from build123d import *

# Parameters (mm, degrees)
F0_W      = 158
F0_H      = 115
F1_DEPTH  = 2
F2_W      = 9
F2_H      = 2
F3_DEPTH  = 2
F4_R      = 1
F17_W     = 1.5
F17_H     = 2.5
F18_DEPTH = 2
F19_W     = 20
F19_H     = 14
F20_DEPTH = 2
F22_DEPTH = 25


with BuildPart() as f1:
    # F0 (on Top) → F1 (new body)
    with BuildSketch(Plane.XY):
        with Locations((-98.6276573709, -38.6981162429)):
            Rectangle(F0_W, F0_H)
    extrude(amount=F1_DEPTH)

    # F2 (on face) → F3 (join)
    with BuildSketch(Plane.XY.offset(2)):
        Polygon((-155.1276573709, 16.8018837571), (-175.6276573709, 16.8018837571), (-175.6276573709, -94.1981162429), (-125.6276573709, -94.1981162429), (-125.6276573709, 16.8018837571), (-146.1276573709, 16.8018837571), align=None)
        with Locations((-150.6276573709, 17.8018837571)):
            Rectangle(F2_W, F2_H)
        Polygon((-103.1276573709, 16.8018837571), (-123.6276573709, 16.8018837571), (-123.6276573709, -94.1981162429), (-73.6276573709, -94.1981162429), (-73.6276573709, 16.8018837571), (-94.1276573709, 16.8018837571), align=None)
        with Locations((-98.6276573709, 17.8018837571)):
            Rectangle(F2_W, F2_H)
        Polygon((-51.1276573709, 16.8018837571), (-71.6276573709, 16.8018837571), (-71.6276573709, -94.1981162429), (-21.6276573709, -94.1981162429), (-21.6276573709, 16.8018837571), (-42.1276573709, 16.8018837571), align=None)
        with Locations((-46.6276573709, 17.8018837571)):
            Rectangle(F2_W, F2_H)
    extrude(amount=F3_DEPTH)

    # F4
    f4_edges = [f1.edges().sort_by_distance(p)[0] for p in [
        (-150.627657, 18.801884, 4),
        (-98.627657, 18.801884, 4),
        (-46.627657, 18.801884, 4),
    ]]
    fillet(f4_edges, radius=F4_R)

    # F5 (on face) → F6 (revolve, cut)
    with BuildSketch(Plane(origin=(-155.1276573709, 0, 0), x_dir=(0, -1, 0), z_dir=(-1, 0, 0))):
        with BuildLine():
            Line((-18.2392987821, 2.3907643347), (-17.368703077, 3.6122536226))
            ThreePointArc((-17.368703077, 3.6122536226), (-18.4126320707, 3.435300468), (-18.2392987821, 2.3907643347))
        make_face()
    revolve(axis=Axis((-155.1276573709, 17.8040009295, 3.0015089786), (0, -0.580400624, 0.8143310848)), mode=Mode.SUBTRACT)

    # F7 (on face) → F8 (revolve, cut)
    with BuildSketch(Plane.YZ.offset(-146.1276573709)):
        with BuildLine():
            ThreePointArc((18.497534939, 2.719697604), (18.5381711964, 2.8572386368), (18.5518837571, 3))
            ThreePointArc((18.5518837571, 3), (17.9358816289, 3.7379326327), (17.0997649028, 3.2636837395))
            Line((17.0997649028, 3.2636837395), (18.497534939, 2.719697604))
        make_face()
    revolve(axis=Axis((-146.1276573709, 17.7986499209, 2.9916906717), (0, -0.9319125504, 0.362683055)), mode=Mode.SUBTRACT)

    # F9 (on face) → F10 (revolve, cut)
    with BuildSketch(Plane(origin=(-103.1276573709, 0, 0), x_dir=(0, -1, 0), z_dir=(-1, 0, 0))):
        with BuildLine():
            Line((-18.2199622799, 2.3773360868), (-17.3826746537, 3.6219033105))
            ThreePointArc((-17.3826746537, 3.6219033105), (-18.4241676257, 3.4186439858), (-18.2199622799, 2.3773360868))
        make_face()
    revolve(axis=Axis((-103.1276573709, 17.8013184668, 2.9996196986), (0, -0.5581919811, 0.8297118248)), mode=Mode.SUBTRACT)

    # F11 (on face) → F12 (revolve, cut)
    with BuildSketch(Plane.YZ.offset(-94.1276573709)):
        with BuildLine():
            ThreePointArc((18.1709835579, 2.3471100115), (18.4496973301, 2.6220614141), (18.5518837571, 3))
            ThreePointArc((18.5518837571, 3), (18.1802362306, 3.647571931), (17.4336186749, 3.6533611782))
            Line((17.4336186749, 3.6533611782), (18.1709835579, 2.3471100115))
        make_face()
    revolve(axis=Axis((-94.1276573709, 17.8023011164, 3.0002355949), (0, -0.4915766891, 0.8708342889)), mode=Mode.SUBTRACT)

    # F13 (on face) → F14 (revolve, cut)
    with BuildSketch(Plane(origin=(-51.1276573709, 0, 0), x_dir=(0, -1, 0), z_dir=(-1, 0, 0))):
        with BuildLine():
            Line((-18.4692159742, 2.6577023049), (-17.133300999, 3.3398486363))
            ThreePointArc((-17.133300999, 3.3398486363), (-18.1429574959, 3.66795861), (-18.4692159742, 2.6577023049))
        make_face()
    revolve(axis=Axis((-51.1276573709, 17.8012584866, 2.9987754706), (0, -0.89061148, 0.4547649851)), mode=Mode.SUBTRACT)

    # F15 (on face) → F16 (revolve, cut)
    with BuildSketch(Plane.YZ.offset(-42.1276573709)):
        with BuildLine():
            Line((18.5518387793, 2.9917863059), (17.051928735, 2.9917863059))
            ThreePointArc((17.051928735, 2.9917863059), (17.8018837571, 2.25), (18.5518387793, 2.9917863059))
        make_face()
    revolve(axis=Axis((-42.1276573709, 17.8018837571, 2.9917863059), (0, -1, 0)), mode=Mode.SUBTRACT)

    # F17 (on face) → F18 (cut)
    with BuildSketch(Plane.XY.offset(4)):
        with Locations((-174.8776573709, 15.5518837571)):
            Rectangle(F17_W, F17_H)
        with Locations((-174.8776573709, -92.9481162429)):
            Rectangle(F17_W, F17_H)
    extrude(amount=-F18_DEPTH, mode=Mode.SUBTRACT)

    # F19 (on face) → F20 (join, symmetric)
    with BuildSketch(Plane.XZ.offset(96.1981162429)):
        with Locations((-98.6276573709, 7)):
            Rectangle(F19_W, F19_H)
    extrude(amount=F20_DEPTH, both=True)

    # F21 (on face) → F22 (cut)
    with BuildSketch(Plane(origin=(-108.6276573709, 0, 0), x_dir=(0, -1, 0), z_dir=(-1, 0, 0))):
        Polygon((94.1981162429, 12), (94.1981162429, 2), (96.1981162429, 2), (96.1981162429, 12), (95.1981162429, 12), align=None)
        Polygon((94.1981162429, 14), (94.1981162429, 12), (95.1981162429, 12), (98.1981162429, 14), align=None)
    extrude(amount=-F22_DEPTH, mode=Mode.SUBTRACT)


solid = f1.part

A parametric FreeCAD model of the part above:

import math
import FreeCAD as App
import Part
import Sketcher


def edges_at(feature, points):
    """Names of the edges that pass closest to the given points."""
    edges = feature.Shape.Edges
    near = lambda p: min(range(len(edges)), key=lambda i: edges[i].distToShape(Part.Vertex(*p))[0])
    return sorted({f"Edge{near(p) + 1}" for p in points})


def add_polygon(sketch, points):
    """Adds a closed chain of lines whose ends are joined by coincident constraints."""
    first, n = sketch.GeometryCount, len(points)
    for a, b in zip(points, points[1:] + points[:1]):
        sketch.addGeometry(Part.LineSegment(App.Vector(*a, 0), App.Vector(*b, 0)), False)
    for i in range(n):
        sketch.addConstraint(Sketcher.Constraint("Coincident", first + i, 2, first + (i + 1) % n, 1))

doc = App.newDocument("Part")
body = doc.addObject("PartDesign::Body", "Body")

# Sketch on XY plane
sketch1 = body.newObject("Sketcher::SketchObject", "Sketch")
sketch1.AttachmentSupport = (doc.getObject("XY_Plane"), [""])
sketch1.MapMode = "FlatFace"
add_polygon(sketch1, [(-178, 19), (-178, -96), (-20, -96), (-20, 19)])  # lines 0-3
sketch1.addConstraint(Sketcher.Constraint("Vertical", 0))
sketch1.addConstraint(Sketcher.Constraint("Horizontal", 1))
sketch1.addConstraint(Sketcher.Constraint("Vertical", 2))
sketch1.addConstraint(Sketcher.Constraint("Horizontal", 3))
sketch1.addConstraint(Sketcher.Constraint("DistanceX", 1, 1, 1, 2, 158.0))
sketch1.addConstraint(Sketcher.Constraint("DistanceY", 0, 2, 0, 1, 115.0))
sketch1.addConstraint(Sketcher.Constraint("DistanceX", 0, 2, -1, 1, 177.627657))
sketch1.addConstraint(Sketcher.Constraint("DistanceY", 0, 2, -1, 1, 96.198116))
pad1 = body.newObject("PartDesign::Pad", "Pad")
pad1.Profile = sketch1
pad1.Length = 2

# Sketch on XY plane
sketch2 = body.newObject("Sketcher::SketchObject", "Sketch001")
sketch2.AttachmentSupport = (doc.getObject("XY_Plane"), [""])
sketch2.MapMode = "FlatFace"
sketch2.AttachmentOffset = App.Placement(App.Vector(0, 0, 2), App.Rotation())
add_polygon(sketch2, [(-175.6, 16.8), (-175.6, -94.2), (-125.6, -94.2), (-125.6, 16.8), (-146.1, 16.8), (-146.1, 18.8), (-155.1, 18.8), (-155.1, 16.8)])  # lines 0-7
add_polygon(sketch2, [(-123.6, 16.8), (-123.6, -94.2), (-73.6, -94.2), (-73.6, 16.8), (-94.1, 16.8), (-94.1, 18.8), (-103.1, 18.8), (-103.1, 16.8)])  # lines 8-15
add_polygon(sketch2, [(-71.6, 16.8), (-71.6, -94.2), (-21.6, -94.2), (-21.6, 16.8), (-42.1, 16.8), (-42.1, 18.8), (-51.1, 18.8), (-51.1, 16.8)])  # lines 16-23
sketch2.addConstraint(Sketcher.Constraint("Vertical", 0))
sketch2.addConstraint(Sketcher.Constraint("Horizontal", 1))
sketch2.addConstraint(Sketcher.Constraint("Vertical", 2))
sketch2.addConstraint(Sketcher.Constraint("Horizontal", 3))
sketch2.addConstraint(Sketcher.Constraint("Vertical", 4))
sketch2.addConstraint(Sketcher.Constraint("Horizontal", 5))
sketch2.addConstraint(Sketcher.Constraint("Vertical", 6))
sketch2.addConstraint(Sketcher.Constraint("Horizontal", 7))
sketch2.addConstraint(Sketcher.Constraint("Vertical", 8))
sketch2.addConstraint(Sketcher.Constraint("Horizontal", 9))
sketch2.addConstraint(Sketcher.Constraint("Vertical", 10))
sketch2.addConstraint(Sketcher.Constraint("Horizontal", 11))
sketch2.addConstraint(Sketcher.Constraint("Vertical", 12))
sketch2.addConstraint(Sketcher.Constraint("Horizontal", 13))
sketch2.addConstraint(Sketcher.Constraint("Vertical", 14))
sketch2.addConstraint(Sketcher.Constraint("Horizontal", 15))
sketch2.addConstraint(Sketcher.Constraint("Vertical", 16))
sketch2.addConstraint(Sketcher.Constraint("Horizontal", 17))
sketch2.addConstraint(Sketcher.Constraint("Vertical", 18))
sketch2.addConstraint(Sketcher.Constraint("Horizontal", 19))
sketch2.addConstraint(Sketcher.Constraint("Vertical", 20))
sketch2.addConstraint(Sketcher.Constraint("Horizontal", 21))
sketch2.addConstraint(Sketcher.Constraint("Vertical", 22))
sketch2.addConstraint(Sketcher.Constraint("Horizontal", 23))
sketch2.addConstraint(Sketcher.Constraint("Horizontal", 3, 2, 6, 2))
sketch2.addConstraint(Sketcher.Constraint("Horizontal", 1, 2, 8, 2))
sketch2.addConstraint(Sketcher.Constraint("Horizontal", 7, 2, 10, 2))
sketch2.addConstraint(Sketcher.Constraint("Horizontal", 5, 2, 12, 2))
sketch2.addConstraint(Sketcher.Constraint("Horizontal", 11, 2, 14, 2))
sketch2.addConstraint(Sketcher.Constraint("Horizontal", 9, 2, 16, 2))
sketch2.addConstraint(Sketcher.Constraint("Horizontal", 15, 2, 18, 2))
sketch2.addConstraint(Sketcher.Constraint("Horizontal", 13, 2, 20, 2))
sketch2.addConstraint(Sketcher.Constraint("Horizontal", 19, 2, 22, 2))
sketch2.addConstraint(Sketcher.Constraint("Equal", 3, 7))
sketch2.addConstraint(Sketcher.Constraint("Equal", 1, 9))
sketch2.addConstraint(Sketcher.Constraint("Equal", 7, 11))
sketch2.addConstraint(Sketcher.Constraint("Equal", 5, 13))
sketch2.addConstraint(Sketcher.Constraint("Equal", 9, 17))
sketch2.addConstraint(Sketcher.Constraint("Equal", 15, 19))
sketch2.addConstraint(Sketcher.Constraint("Equal", 13, 21))
sketch2.addConstraint(Sketcher.Constraint("DistanceX", 1, 1, 1, 2, 50.0))
sketch2.addConstraint(Sketcher.Constraint("DistanceX", 5, 2, 5, 1, 9.0))
sketch2.addConstraint(Sketcher.Constraint("DistanceY", 0, 2, 0, 1, 111.0))
sketch2.addConstraint(Sketcher.Constraint("DistanceY", 4, 1, 4, 2, 2.0))
sketch2.addConstraint(Sketcher.Constraint("DistanceX", 1, 2, 8, 2, 2.0))
sketch2.addConstraint(Sketcher.Constraint("DistanceX", 9, 2, 16, 2, 2.0))
sketch2.addConstraint(Sketcher.Constraint("DistanceX", 0, 2, -1, 1, 175.627657))
sketch2.addConstraint(Sketcher.Constraint("DistanceY", 0, 2, -1, 1, 94.198116))
pad2 = body.newObject("PartDesign::Pad", "Pad001")
pad2.Profile = sketch2
pad2.Length = 2
doc.recompute()

fillet = body.newObject("PartDesign::Fillet", "Fillet")
fillet.Base = (pad2, edges_at(pad2, [(-150.628, 18.802, 4), (-98.628, 18.802, 4), (-46.628, 18.802, 4)]))
fillet.Radius = 1

# Sketch on YZ plane
sketch3 = body.newObject("Sketcher::SketchObject", "Sketch002")
sketch3.AttachmentSupport = (doc.getObject("YZ_Plane"), [""])
sketch3.MapMode = "FlatFace"
sketch3.AttachmentOffset = App.Placement(App.Vector(0, 0, -155.127657), App.Rotation())
sketch3.addGeometry(Part.LineSegment(App.Vector(18.2, 2.4, 0), App.Vector(17.4, 3.6, 0)), False)
sketch3.addGeometry(Part.ArcOfCircle(Part.Circle(App.Vector(17.8, 3, 0), App.Vector(0, 0, 1), 0.8), math.radians(-54), math.radians(125)), False)
sketch3.addGeometry(Part.LineSegment(App.Vector(18.2, 2.4, 0), App.Vector(17.4, 3.6, 0)), True)  # axis
sketch3.addConstraint(Sketcher.Constraint("Coincident", 0, 1, 1, 1))
sketch3.addConstraint(Sketcher.Constraint("Coincident", 1, 2, 0, 2))
sketch3.addConstraint(Sketcher.Constraint("Coincident", 2, 1, 0, 1))
sketch3.addConstraint(Sketcher.Constraint("Coincident", 2, 2, 1, 2))
sketch3.addConstraint(Sketcher.Constraint("Radius", 1, 0.75))
sketch3.addConstraint(Sketcher.Constraint("DistanceY", -1, 1, 1, 3, 3.0))
sketch3.addConstraint(Sketcher.Constraint("DistanceX", -1, 1, 0, 1, 18.239299))
sketch3.addConstraint(Sketcher.Constraint("Distance", 0, 1.499991))
sketch3.addConstraint(Sketcher.Constraint("DistanceX", 1, 2, 1, 3, 0.433181))
groove = body.newObject("PartDesign::Groove", "Groove")
groove.Profile = sketch3
groove.ReferenceAxis = (sketch3, ["Axis0"])
groove.Angle = 360

# Sketch on YZ plane
sketch4 = body.newObject("Sketcher::SketchObject", "Sketch003")
sketch4.AttachmentSupport = (doc.getObject("YZ_Plane"), [""])
sketch4.MapMode = "FlatFace"
sketch4.AttachmentOffset = App.Placement(App.Vector(0, 0, -146.127657), App.Rotation())
sketch4.addGeometry(Part.ArcOfCircle(Part.Circle(App.Vector(17.8, 3, 0), App.Vector(0, 0, 1), 0.75), math.radians(-22), math.radians(0)), False)
sketch4.addGeometry(Part.ArcOfCircle(Part.Circle(App.Vector(17.8, 3, 0), App.Vector(0, 0, 1), 0.75), math.radians(0), math.radians(159)), False)
sketch4.addGeometry(Part.LineSegment(App.Vector(17.1, 3.26, 0), App.Vector(18.5, 2.72, 0)), False)
sketch4.addGeometry(Part.LineSegment(App.Vector(18.5, 2.72, 0), App.Vector(17.1, 3.26, 0)), True)  # axis
sketch4.addConstraint(Sketcher.Constraint("Tangent", 0, 2, 1, 1))
sketch4.addConstraint(Sketcher.Constraint("Coincident", 1, 2, 2, 1))
sketch4.addConstraint(Sketcher.Constraint("Coincident", 2, 2, 0, 1))
sketch4.addConstraint(Sketcher.Constraint("Coincident", 3, 1, 2, 2))
sketch4.addConstraint(Sketcher.Constraint("Coincident", 3, 2, 1, 2))
sketch4.addConstraint(Sketcher.Constraint("Equal", 0, 1))
sketch4.addConstraint(Sketcher.Constraint("Horizontal", 1, 3, 0, 2))
sketch4.addConstraint(Sketcher.Constraint("Radius", 0, 0.75))
sketch4.addConstraint(Sketcher.Constraint("DistanceY", -1, 1, 0, 3, 3.0))
sketch4.addConstraint(Sketcher.Constraint("DistanceX", 1, 2, 1, 3, 0.702119))
sketch4.addConstraint(Sketcher.Constraint("DistanceX", 2, 2, 0, 2, 0.054349))
sketch4.addConstraint(Sketcher.Constraint("DistanceX", -1, 1, 0, 3, 17.801884))
groove2 = body.newObject("PartDesign::Groove", "Groove001")
groove2.Profile = sketch4
groove2.ReferenceAxis = (sketch4, ["Axis0"])
groove2.Angle = 360

# Sketch on YZ plane
sketch5 = body.newObject("Sketcher::SketchObject", "Sketch004")
sketch5.AttachmentSupport = (doc.getObject("YZ_Plane"), [""])
sketch5.MapMode = "FlatFace"
sketch5.AttachmentOffset = App.Placement(App.Vector(0, 0, -103.127657), App.Rotation())
sketch5.addGeometry(Part.LineSegment(App.Vector(18.2, 2.4, 0), App.Vector(17.4, 3.6, 0)), False)
sketch5.addGeometry(Part.ArcOfCircle(Part.Circle(App.Vector(17.8, 3, 0), App.Vector(0, 0, 1), 0.8), math.radians(-56), math.radians(124)), False)
sketch5.addGeometry(Part.LineSegment(App.Vector(18.2, 2.4, 0), App.Vector(17.4, 3.6, 0)), True)  # axis
sketch5.addConstraint(Sketcher.Constraint("Coincident", 0, 1, 1, 1))
sketch5.addConstraint(Sketcher.Constraint("Coincident", 1, 2, 0, 2))
sketch5.addConstraint(Sketcher.Constraint("Coincident", 2, 1, 0, 1))
sketch5.addConstraint(Sketcher.Constraint("Coincident", 2, 2, 1, 2))
sketch5.addConstraint(Sketcher.Constraint("Radius", 1, 0.75))
sketch5.addConstraint(Sketcher.Constraint("DistanceY", -1, 1, 1, 3, 3.0))
sketch5.addConstraint(Sketcher.Constraint("DistanceX", 1, 3, 0, 1, 0.418079))
sketch5.addConstraint(Sketcher.Constraint("DistanceX", 1, 2, 1, 3, 0.419209))
sketch5.addConstraint(Sketcher.Constraint("DistanceX", -1, 1, 1, 3, 17.801884))
groove3 = body.newObject("PartDesign::Groove", "Groove002")
groove3.Profile = sketch5
groove3.ReferenceAxis = (sketch5, ["Axis0"])
groove3.Angle = 360

# Sketch on YZ plane
sketch6 = body.newObject("Sketcher::SketchObject", "Sketch005")
sketch6.AttachmentSupport = (doc.getObject("YZ_Plane"), [""])
sketch6.MapMode = "FlatFace"
sketch6.AttachmentOffset = App.Placement(App.Vector(0, 0, -94.127657), App.Rotation())
sketch6.addGeometry(Part.ArcOfCircle(Part.Circle(App.Vector(17.8, 3, 0), App.Vector(0, 0, 1), 0.8), math.radians(-61), math.radians(0)), False)
sketch6.addGeometry(Part.ArcOfCircle(Part.Circle(App.Vector(17.8, 3, 0), App.Vector(0, 0, 1), 0.8), math.radians(0), math.radians(119)), False)
sketch6.addGeometry(Part.LineSegment(App.Vector(17.4, 3.7, 0), App.Vector(18.2, 2.3, 0)), False)
sketch6.addGeometry(Part.LineSegment(App.Vector(18.2, 2.3, 0), App.Vector(17.4, 3.7, 0)), True)  # axis
sketch6.addConstraint(Sketcher.Constraint("Tangent", 0, 2, 1, 1))
sketch6.addConstraint(Sketcher.Constraint("Coincident", 1, 2, 2, 1))
sketch6.addConstraint(Sketcher.Constraint("Coincident", 2, 2, 0, 1))
sketch6.addConstraint(Sketcher.Constraint("Coincident", 3, 1, 2, 2))
sketch6.addConstraint(Sketcher.Constraint("Coincident", 3, 2, 1, 2))
sketch6.addConstraint(Sketcher.Constraint("Equal", 0, 1))
sketch6.addConstraint(Sketcher.Constraint("Horizontal", 1, 3, 0, 2))
sketch6.addConstraint(Sketcher.Constraint("Radius", 0, 0.75))
sketch6.addConstraint(Sketcher.Constraint("DistanceY", -1, 1, 0, 3, 3.0))
sketch6.addConstraint(Sketcher.Constraint("DistanceX", 0, 3, 2, 2, 0.3691))
sketch6.addConstraint(Sketcher.Constraint("DistanceX", -1, 1, 1, 2, 17.433619))
sketch6.addConstraint(Sketcher.Constraint("DistanceY", -1, 1, 1, 2, 3.653361))
groove4 = body.newObject("PartDesign::Groove", "Groove003")
groove4.Profile = sketch6
groove4.ReferenceAxis = (sketch6, ["Axis0"])
groove4.Angle = 360

# Sketch on YZ plane
sketch7 = body.newObject("Sketcher::SketchObject", "Sketch006")
sketch7.AttachmentSupport = (doc.getObject("YZ_Plane"), [""])
sketch7.MapMode = "FlatFace"
sketch7.AttachmentOffset = App.Placement(App.Vector(0, 0, -51.127657), App.Rotation())
sketch7.addGeometry(Part.LineSegment(App.Vector(18.5, 2.7, 0), App.Vector(17.1, 3.3, 0)), False)
sketch7.addGeometry(Part.ArcOfCircle(Part.Circle(App.Vector(17.8, 3, 0), App.Vector(0, 0, 1), 0.8), math.radians(-27), math.radians(153)), False)
sketch7.addGeometry(Part.LineSegment(App.Vector(18.5, 2.7, 0), App.Vector(17.1, 3.3, 0)), True)  # axis
sketch7.addConstraint(Sketcher.Constraint("Coincident", 0, 1, 1, 1))
sketch7.addConstraint(Sketcher.Constraint("Coincident", 1, 2, 0, 2))
sketch7.addConstraint(Sketcher.Constraint("Coincident", 2, 1, 0, 1))
sketch7.addConstraint(Sketcher.Constraint("Coincident", 2, 2, 1, 2))
sketch7.addConstraint(Sketcher.Constraint("Radius", 1, 0.75))
sketch7.addConstraint(Sketcher.Constraint("DistanceY", -1, 1, 1, 3, 3.0))
sketch7.addConstraint(Sketcher.Constraint("DistanceX", -1, 1, 1, 2, 17.133301))
sketch7.addConstraint(Sketcher.Constraint("DistanceY", -1, 1, 1, 2, 3.339849))
sketch7.addConstraint(Sketcher.Constraint("DistanceX", -1, 1, 0, 1, 18.469216))
groove5 = body.newObject("PartDesign::Groove", "Groove004")
groove5.Profile = sketch7
groove5.ReferenceAxis = (sketch7, ["Axis0"])
groove5.Angle = 360

# Sketch on YZ plane
sketch8 = body.newObject("Sketcher::SketchObject", "Sketch007")
sketch8.AttachmentSupport = (doc.getObject("YZ_Plane"), [""])
sketch8.MapMode = "FlatFace"
sketch8.AttachmentOffset = App.Placement(App.Vector(0, 0, -42.127657), App.Rotation())
sketch8.addGeometry(Part.LineSegment(App.Vector(18.6, 3, 0), App.Vector(17.1, 3, 0)), False)
sketch8.addGeometry(Part.ArcOfCircle(Part.Circle(App.Vector(17.8, 3, 0), App.Vector(0, 0, 1), 0.8), math.radians(-179), math.radians(-1)), False)
sketch8.addGeometry(Part.LineSegment(App.Vector(18.6, 3, 0), App.Vector(17.1, 3, 0)), True)  # axis
sketch8.addConstraint(Sketcher.Constraint("Coincident", 0, 1, 1, 2))
sketch8.addConstraint(Sketcher.Constraint("Coincident", 1, 1, 0, 2))
sketch8.addConstraint(Sketcher.Constraint("Horizontal", 0))
sketch8.addConstraint(Sketcher.Constraint("Horizontal", 2))
sketch8.addConstraint(Sketcher.Constraint("Coincident", 2, 1, 0, 1))
sketch8.addConstraint(Sketcher.Constraint("Equal", 0, 2))
sketch8.addConstraint(Sketcher.Constraint("Radius", 1, 0.75))
sketch8.addConstraint(Sketcher.Constraint("DistanceY", -1, 1, 1, 3, 3.0))
sketch8.addConstraint(Sketcher.Constraint("DistanceX", 0, 2, 0, 1, 1.49991))
sketch8.addConstraint(Sketcher.Constraint("DistanceX", -1, 1, 0, 1, 18.551839))
groove6 = body.newObject("PartDesign::Groove", "Groove005")
groove6.Profile = sketch8
groove6.ReferenceAxis = (sketch8, ["Axis0"])
groove6.Angle = 360

# Sketch on XY plane
sketch9 = body.newObject("Sketcher::SketchObject", "Sketch008")
sketch9.AttachmentSupport = (doc.getObject("XY_Plane"), [""])
sketch9.MapMode = "FlatFace"
sketch9.AttachmentOffset = App.Placement(App.Vector(0, 0, 4), App.Rotation())
add_polygon(sketch9, [(-175.6, 16.8), (-175.6, 14.3), (-174.1, 14.3), (-174.1, 16.8)])  # lines 0-3
add_polygon(sketch9, [(-175.6, -91.7), (-175.6, -94.2), (-174.1, -94.2), (-174.1, -91.7)])  # lines 4-7
sketch9.addConstraint(Sketcher.Constraint("Vertical", 0))
sketch9.addConstraint(Sketcher.Constraint("Horizontal", 1))
sketch9.addConstraint(Sketcher.Constraint("Vertical", 2))
sketch9.addConstraint(Sketcher.Constraint("Horizontal", 3))
sketch9.addConstraint(Sketcher.Constraint("Vertical", 4))
sketch9.addConstraint(Sketcher.Constraint("Horizontal", 5))
sketch9.addConstraint(Sketcher.Constraint("Vertical", 6))
sketch9.addConstraint(Sketcher.Constraint("Horizontal", 7))
sketch9.addConstraint(Sketcher.Constraint("Vertical", 3, 2, 4, 2))
sketch9.addConstraint(Sketcher.Constraint("Vertical", 2, 2, 5, 2))
sketch9.addConstraint(Sketcher.Constraint("Equal", 2, 4))
sketch9.addConstraint(Sketcher.Constraint("DistanceX", 1, 1, 1, 2, 1.5))
sketch9.addConstraint(Sketcher.Constraint("DistanceY", 0, 2, 0, 1, 2.5))
sketch9.addConstraint(Sketcher.Constraint("DistanceY", 4, 2, 3, 2, 111.0))
sketch9.addConstraint(Sketcher.Constraint("DistanceX", 0, 2, -1, 1, 175.627657))
sketch9.addConstraint(Sketcher.Constraint("DistanceY", -1, 1, 0, 2, 14.301884))
pocket1 = body.newObject("PartDesign::Pocket", "Pocket")
pocket1.Profile = sketch9
pocket1.Length = 2

# Sketch on XZ plane
sketch10 = body.newObject("Sketcher::SketchObject", "Sketch009")
sketch10.AttachmentSupport = (doc.getObject("XZ_Plane"), [""])
sketch10.MapMode = "FlatFace"
sketch10.AttachmentOffset = App.Placement(App.Vector(0, 0, 96.198116), App.Rotation())
add_polygon(sketch10, [(-109, 14), (-109, 0), (-89, 0), (-89, 14)])  # lines 0-3
sketch10.addConstraint(Sketcher.Constraint("Vertical", 0))
sketch10.addConstraint(Sketcher.Constraint("Horizontal", 1))
sketch10.addConstraint(Sketcher.Constraint("Vertical", 2))
sketch10.addConstraint(Sketcher.Constraint("Horizontal", 3))
sketch10.addConstraint(Sketcher.Constraint("PointOnObject", 0, 2, -1))
sketch10.addConstraint(Sketcher.Constraint("DistanceX", 1, 1, 1, 2, 20.0))
sketch10.addConstraint(Sketcher.Constraint("DistanceY", 0, 2, 0, 1, 14.0))
sketch10.addConstraint(Sketcher.Constraint("DistanceX", 0, 2, -1, 1, 108.627657))
pad3 = body.newObject("PartDesign::Pad", "Pad002")
pad3.Profile = sketch10
pad3.Length = 4
pad3.Midplane = True

# Sketch on YZ plane
sketch11 = body.newObject("Sketcher::SketchObject", "Sketch010")
sketch11.AttachmentSupport = (doc.getObject("YZ_Plane"), [""])
sketch11.MapMode = "FlatFace"
sketch11.AttachmentOffset = App.Placement(App.Vector(0, 0, -108.627657), App.Rotation())
add_polygon(sketch11, [(-94.2, 2), (-96.2, 2), (-96.2, 12), (-95.2, 12), (-98.2, 14), (-94.2, 14)])  # lines 0-5
sketch11.addConstraint(Sketcher.Constraint("Horizontal", 0))
sketch11.addConstraint(Sketcher.Constraint("Vertical", 1))
sketch11.addConstraint(Sketcher.Constraint("Horizontal", 2))
sketch11.addConstraint(Sketcher.Constraint("Horizontal", 4))
sketch11.addConstraint(Sketcher.Constraint("Vertical", 5))
sketch11.addConstraint(Sketcher.Constraint("DistanceX", 0, 2, 0, 1, 2.0))
sketch11.addConstraint(Sketcher.Constraint("DistanceX", 2, 1, 2, 2, 1.0))
sketch11.addConstraint(Sketcher.Constraint("DistanceX", 4, 1, 4, 2, 4.0))
sketch11.addConstraint(Sketcher.Constraint("DistanceY", 1, 1, 1, 2, 10.0))
sketch11.addConstraint(Sketcher.Constraint("DistanceY", 5, 2, 5, 1, 12.0))
sketch11.addConstraint(Sketcher.Constraint("DistanceY", -1, 1, 0, 2, 2.0))
sketch11.addConstraint(Sketcher.Constraint("DistanceX", 0, 2, -1, 1, 96.198116))
pocket2 = body.newObject("PartDesign::Pocket", "Pocket001")
pocket2.Profile = sketch11
pocket2.Length = 25
pocket2.Reversed = True

doc.recompute()
